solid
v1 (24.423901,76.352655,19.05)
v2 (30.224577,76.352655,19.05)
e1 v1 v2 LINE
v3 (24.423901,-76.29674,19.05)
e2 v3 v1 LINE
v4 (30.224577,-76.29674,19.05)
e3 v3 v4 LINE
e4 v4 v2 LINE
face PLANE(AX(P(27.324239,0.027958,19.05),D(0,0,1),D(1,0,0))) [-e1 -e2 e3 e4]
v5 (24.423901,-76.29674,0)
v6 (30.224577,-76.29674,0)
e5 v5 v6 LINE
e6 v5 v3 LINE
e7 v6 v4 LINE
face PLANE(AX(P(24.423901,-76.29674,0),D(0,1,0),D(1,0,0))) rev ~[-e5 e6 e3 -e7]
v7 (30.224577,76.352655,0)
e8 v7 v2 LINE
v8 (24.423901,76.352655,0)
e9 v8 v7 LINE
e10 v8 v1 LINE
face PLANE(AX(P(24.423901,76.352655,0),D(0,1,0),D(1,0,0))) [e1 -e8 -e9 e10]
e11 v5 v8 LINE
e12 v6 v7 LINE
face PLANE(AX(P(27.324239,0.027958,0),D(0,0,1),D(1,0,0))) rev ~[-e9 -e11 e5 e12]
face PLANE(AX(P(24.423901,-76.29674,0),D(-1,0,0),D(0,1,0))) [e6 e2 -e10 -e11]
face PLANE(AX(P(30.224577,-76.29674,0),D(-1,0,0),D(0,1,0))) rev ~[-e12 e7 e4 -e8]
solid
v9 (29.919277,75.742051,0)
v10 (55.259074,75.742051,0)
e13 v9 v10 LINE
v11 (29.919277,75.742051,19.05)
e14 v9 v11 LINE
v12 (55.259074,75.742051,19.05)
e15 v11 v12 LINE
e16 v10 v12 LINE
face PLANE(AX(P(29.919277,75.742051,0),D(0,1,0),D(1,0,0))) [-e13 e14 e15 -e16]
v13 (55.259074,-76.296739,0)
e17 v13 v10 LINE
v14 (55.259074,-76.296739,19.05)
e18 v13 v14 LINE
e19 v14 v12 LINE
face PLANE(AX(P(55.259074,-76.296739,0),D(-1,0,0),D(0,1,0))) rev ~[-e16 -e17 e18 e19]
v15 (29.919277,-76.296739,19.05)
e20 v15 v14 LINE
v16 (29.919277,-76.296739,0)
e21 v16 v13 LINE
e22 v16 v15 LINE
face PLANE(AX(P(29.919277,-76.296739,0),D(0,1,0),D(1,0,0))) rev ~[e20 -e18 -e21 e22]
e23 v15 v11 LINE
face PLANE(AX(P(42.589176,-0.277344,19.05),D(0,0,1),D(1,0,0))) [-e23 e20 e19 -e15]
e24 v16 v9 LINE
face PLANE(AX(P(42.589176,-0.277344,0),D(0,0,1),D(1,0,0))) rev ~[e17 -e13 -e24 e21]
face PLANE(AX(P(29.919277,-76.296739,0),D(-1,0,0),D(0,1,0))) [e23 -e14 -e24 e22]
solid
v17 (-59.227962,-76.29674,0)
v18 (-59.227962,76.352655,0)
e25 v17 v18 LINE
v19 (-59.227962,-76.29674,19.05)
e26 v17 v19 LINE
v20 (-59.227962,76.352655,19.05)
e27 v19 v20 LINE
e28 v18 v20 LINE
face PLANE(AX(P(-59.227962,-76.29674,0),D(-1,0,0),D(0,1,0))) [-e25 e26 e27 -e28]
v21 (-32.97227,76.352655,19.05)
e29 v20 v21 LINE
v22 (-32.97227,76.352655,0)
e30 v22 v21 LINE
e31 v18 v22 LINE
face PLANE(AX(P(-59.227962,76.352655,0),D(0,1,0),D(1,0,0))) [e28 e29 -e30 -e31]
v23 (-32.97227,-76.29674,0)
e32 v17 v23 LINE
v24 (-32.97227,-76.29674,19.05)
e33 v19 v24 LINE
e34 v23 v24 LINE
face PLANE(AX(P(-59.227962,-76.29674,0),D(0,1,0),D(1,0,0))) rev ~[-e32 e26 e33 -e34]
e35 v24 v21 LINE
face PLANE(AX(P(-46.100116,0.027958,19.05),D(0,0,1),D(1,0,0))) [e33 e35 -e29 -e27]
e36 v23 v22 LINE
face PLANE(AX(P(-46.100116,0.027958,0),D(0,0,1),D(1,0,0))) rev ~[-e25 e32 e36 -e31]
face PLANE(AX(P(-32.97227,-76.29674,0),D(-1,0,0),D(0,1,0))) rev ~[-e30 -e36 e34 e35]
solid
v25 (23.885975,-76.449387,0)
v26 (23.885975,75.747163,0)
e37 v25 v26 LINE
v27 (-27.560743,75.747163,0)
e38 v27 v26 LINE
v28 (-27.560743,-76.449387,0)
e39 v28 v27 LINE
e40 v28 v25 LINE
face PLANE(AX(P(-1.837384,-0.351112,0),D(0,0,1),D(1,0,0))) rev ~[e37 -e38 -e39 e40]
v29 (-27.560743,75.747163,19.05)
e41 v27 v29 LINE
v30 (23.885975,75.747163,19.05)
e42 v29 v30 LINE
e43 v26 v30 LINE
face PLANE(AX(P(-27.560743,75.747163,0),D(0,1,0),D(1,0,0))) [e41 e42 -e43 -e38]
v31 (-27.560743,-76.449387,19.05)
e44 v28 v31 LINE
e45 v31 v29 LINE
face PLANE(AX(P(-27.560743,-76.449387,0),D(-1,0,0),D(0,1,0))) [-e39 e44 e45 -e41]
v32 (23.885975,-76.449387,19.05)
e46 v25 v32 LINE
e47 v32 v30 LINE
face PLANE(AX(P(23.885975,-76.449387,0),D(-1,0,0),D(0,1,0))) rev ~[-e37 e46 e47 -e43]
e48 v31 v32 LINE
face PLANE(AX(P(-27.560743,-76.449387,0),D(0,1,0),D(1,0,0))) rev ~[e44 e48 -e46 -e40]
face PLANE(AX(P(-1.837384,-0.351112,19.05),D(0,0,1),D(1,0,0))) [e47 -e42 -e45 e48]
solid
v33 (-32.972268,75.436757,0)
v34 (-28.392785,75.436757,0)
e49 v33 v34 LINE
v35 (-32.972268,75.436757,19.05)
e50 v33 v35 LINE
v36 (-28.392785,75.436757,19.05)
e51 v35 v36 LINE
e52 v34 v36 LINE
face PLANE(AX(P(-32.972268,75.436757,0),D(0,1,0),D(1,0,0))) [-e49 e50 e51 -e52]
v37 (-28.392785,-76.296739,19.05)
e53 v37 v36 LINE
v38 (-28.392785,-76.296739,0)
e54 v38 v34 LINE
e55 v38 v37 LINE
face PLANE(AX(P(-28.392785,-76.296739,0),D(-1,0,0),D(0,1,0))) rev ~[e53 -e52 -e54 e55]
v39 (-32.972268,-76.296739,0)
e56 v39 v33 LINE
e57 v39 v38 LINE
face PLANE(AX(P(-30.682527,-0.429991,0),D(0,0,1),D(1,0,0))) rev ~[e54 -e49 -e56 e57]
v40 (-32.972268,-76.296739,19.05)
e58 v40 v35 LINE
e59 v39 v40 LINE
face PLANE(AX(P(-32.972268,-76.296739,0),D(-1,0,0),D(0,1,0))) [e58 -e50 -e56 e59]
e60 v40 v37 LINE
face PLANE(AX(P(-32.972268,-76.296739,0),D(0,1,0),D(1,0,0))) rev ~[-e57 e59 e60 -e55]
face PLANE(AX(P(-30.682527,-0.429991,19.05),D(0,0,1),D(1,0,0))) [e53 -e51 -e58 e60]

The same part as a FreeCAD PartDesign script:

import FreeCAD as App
import Part
import Sketcher
Q = App.Units.Quantity

doc = App.newDocument("Part")
body = doc.addObject("PartDesign::Body", "Body")

# Sketch on XY plane
sketch1 = body.newObject("Sketcher::SketchObject", "Sketch")
sketch1.AttachmentSupport = (doc.getObject("XY_Plane"), [""])
sketch1.MapMode = "FlatFace"
sketch1.addGeometry(Part.LineSegment(App.Vector(-28, 76, 0), App.Vector(-28, -76, 0)), False)
sketch1.addGeometry(Part.LineSegment(App.Vector(-28, -76, 0), App.Vector(24, -76, 0)), False)
sketch1.addGeometry(Part.LineSegment(App.Vector(24, -76, 0), App.Vector(24, 76, 0)), False)
sketch1.addGeometry(Part.LineSegment(App.Vector(24, 76, 0), App.Vector(-28, 76, 0)), False)
sketch1.addConstraint(Sketcher.Constraint("Coincident", 0, 2, 1, 1))
sketch1.addConstraint(Sketcher.Constraint("Coincident", 1, 2, 2, 1))
sketch1.addConstraint(Sketcher.Constraint("Coincident", 2, 2, 3, 1))
sketch1.addConstraint(Sketcher.Constraint("Coincident", 3, 2, 0, 1))
sketch1.addConstraint(Sketcher.Constraint("Vertical", 0))
sketch1.addConstraint(Sketcher.Constraint("Horizontal", 1))
sketch1.addConstraint(Sketcher.Constraint("Vertical", 2))
sketch1.addConstraint(Sketcher.Constraint("Horizontal", 3))
sketch1.addConstraint(Sketcher.Constraint("DistanceY", 0, 2, 0, 1, Q("152.196549 mm")))
sketch1.addConstraint(Sketcher.Constraint("DistanceX", 1, 1, 1, 2, Q("51.446718 mm")))
sketch1.addConstraint(Sketcher.Constraint("DistanceX", 0, 2, -1, 1, Q("27.560743 mm")))
sketch1.addConstraint(Sketcher.Constraint("DistanceY", 0, 2, -1, 1, Q("76.449387 mm")))
pad1 = body.newObject("PartDesign::Pad", "Pad")
pad1.Profile = sketch1
pad1.Length = Q("0.75 in")
body2 = doc.addObject("PartDesign::Body", "Body001")
body2.AllowCompound = True

# Sketch on XY plane
sketch2 = body2.newObject("Sketcher::SketchObject", "Sketch001")
sketch2.AttachmentSupport = (doc.getObject("XY_Plane001"), [""])
sketch2.MapMode = "FlatFace"
sketch2.addGeometry(Part.LineSegment(App.Vector(-33, 75.4, 0), App.Vector(-33, -76.3, 0)), False)
sketch2.addGeometry(Part.LineSegment(App.Vector(-33, -76.3, 0), App.Vector(-28.4, -76.3, 0)), False)
sketch2.addGeometry(Part.LineSegment(App.Vector(-28.4, -76.3, 0), App.Vector(-28.4, 75.4, 0)), False)
sketch2.addGeometry(Part.LineSegment(App.Vector(-28.4, 75.4, 0), App.Vector(-33, 75.4, 0)), False)
sketch2.addGeometry(Part.LineSegment(App.Vector(24.4, 76.4, 0), App.Vector(24.4, -76.3, 0)), False)
sketch2.addGeometry(Part.LineSegment(App.Vector(24.4, -76.3, 0), App.Vector(30.2, -76.3, 0)), False)
sketch2.addGeometry(Part.LineSegment(App.Vector(30.2, -76.3, 0), App.Vector(30.2, 76.4, 0)), False)
sketch2.addGeometry(Part.LineSegment(App.Vector(30.2, 76.4, 0), App.Vector(24.4, 76.4, 0)), False)
sketch2.addConstraint(Sketcher.Constraint("Coincident", 0, 2, 1, 1))
sketch2.addConstraint(Sketcher.Constraint("Coincident", 1, 2, 2, 1))
sketch2.addConstraint(Sketcher.Constraint("Coincident", 2, 2, 3, 1))
sketch2.addConstraint(Sketcher.Constraint("Coincident", 3, 2, 0, 1))
sketch2.addConstraint(Sketcher.Constraint("Coincident", 4, 2, 5, 1))
sketch2.addConstraint(Sketcher.Constraint("Coincident", 5, 2, 6, 1))
sketch2.addConstraint(Sketcher.Constraint("Coincident", 6, 2, 7, 1))
sketch2.addConstraint(Sketcher.Constraint("Coincident", 7, 2, 4, 1))
sketch2.addConstraint(Sketcher.Constraint("Vertical", 0))
sketch2.addConstraint(Sketcher.Constraint("Horizontal", 1))
sketch2.addConstraint(Sketcher.Constraint("Vertical", 2))
sketch2.addConstraint(Sketcher.Constraint("Horizontal", 3))
sketch2.addConstraint(Sketcher.Constraint("Vertical", 4))
sketch2.addConstraint(Sketcher.Constraint("Horizontal", 5))
sketch2.addConstraint(Sketcher.Constraint("Vertical", 6))
sketch2.addConstraint(Sketcher.Constraint("Horizontal", 7))
sketch2.addConstraint(Sketcher.Constraint("Horizontal", 1, 2, 4, 2))
sketch2.addConstraint(Sketcher.Constraint("DistanceX", -1, 1, 4, 2, Q("24.423901 mm")))
sketch2.addConstraint(Sketcher.Constraint("DistanceY", 2, 2, 6, 2, Q("0.915899 mm")))
sketch2.addConstraint(Sketcher.Constraint("DistanceX", 1, 1, 1, 2, Q("4.579483 mm")))
sketch2.addConstraint(Sketcher.Constraint("DistanceX", 5, 1, 5, 2, Q("5.800676 mm")))
sketch2.addConstraint(Sketcher.Constraint("DistanceY", 0, 2, 0, 1, Q("151.733495 mm")))
sketch2.addConstraint(Sketcher.Constraint("DistanceX", 0, 2, -1, 1, Q("32.972268 mm")))
sketch2.addConstraint(Sketcher.Constraint("DistanceY", 0, 2, -1, 1, Q("76.296739 mm")))
pad2 = body2.newObject("PartDesign::Pad", "Pad001")
pad2.Profile = sketch2
pad2.Length = Q("0.75 in")
body3 = doc.addObject("PartDesign::Body", "Body002")
body3.AllowCompound = True

# Sketch on XY plane
sketch3 = body3.newObject("Sketcher::SketchObject", "Sketch002")
sketch3.AttachmentSupport = (doc.getObject("XY_Plane002"), [""])
sketch3.MapMode = "FlatFace"
sketch3.addGeometry(Part.LineSegment(App.Vector(-59, 76, 0), App.Vector(-59, -76, 0)), False)
sketch3.addGeometry(Part.LineSegment(App.Vector(-59, -76, 0), App.Vector(-33, -76, 0)), False)
sketch3.addGeometry(Part.LineSegment(App.Vector(-33, -76, 0), App.Vector(-33, 76, 0)), False)
sketch3.addGeometry(Part.LineSegment(App.Vector(-33, 76, 0), App.Vector(-59, 76, 0)), False)
sketch3.addGeometry(Part.LineSegment(App.Vector(30, 76, 0), App.Vector(30, -76, 0)), False)
sketch3.addGeometry(Part.LineSegment(App.Vector(30, -76, 0), App.Vector(55, -76, 0)), False)
sketch3.addGeometry(Part.LineSegment(App.Vector(55, -76, 0), App.Vector(55, 76, 0)), False)
sketch3.addGeometry(Part.LineSegment(App.Vector(55, 76, 0), App.Vector(30, 76, 0)), False)
sketch3.addConstraint(Sketcher.Constraint("Coincident", 0, 2, 1, 1))
sketch3.addConstraint(Sketcher.Constraint("Coincident", 1, 2, 2, 1))
sketch3.addConstraint(Sketcher.Constraint("Coincident", 2, 2, 3, 1))
sketch3.addConstraint(Sketcher.Constraint("Coincident", 3, 2, 0, 1))
sketch3.addConstraint(Sketcher.Constraint("Coincident", 4, 2, 5, 1))
sketch3.addConstraint(Sketcher.Constraint("Coincident", 5, 2, 6, 1))
sketch3.addConstraint(Sketcher.Constraint("Coincident", 6, 2, 7, 1))
sketch3.addConstraint(Sketcher.Constraint("Coincident", 7, 2, 4, 1))
sketch3.addConstraint(Sketcher.Constraint("Vertical", 0))
sketch3.addConstraint(Sketcher.Constraint("Horizontal", 1))
sketch3.addConstraint(Sketcher.Constraint("Vertical", 2))
sketch3.addConstraint(Sketcher.Constraint("Horizontal", 3))
sketch3.addConstraint(Sketcher.Constraint("Vertical", 4))
sketch3.addConstraint(Sketcher.Constraint("Horizontal", 5))
sketch3.addConstraint(Sketcher.Constraint("Vertical", 6))
sketch3.addConstraint(Sketcher.Constraint("Horizontal", 7))
sketch3.addConstraint(Sketcher.Constraint("Horizontal", 1, 2, 4, 2))
sketch3.addConstraint(Sketcher.Constraint("DistanceY", 4, 2, 4, 1, Q("152.03879 mm")))
sketch3.addConstraint(Sketcher.Constraint("DistanceX", 1, 1, 1, 2, Q("26.255693 mm")))
sketch3.addConstraint(Sketcher.Constraint("DistanceX", 5, 1, 5, 2, Q("25.339797 mm")))
sketch3.addConstraint(Sketcher.Constraint("DistanceY", 0, 2, 0, 1, Q("152.649395 mm")))
sketch3.addConstraint(Sketcher.Constraint("DistanceY", 0, 2, -1, 1, Q("76.29674 mm")))
sketch3.addConstraint(Sketcher.Constraint("DistanceX", 1, 2, -1, 1, Q("32.97227 mm")))
sketch3.addConstraint(Sketcher.Constraint("DistanceX", 0, 2, 4, 2, Q("89.14724 mm")))
pad3 = body3.newObject("PartDesign::Pad", "Pad002")
pad3.Profile = sketch3
pad3.Length = Q("0.75 in")

doc.recompute()
